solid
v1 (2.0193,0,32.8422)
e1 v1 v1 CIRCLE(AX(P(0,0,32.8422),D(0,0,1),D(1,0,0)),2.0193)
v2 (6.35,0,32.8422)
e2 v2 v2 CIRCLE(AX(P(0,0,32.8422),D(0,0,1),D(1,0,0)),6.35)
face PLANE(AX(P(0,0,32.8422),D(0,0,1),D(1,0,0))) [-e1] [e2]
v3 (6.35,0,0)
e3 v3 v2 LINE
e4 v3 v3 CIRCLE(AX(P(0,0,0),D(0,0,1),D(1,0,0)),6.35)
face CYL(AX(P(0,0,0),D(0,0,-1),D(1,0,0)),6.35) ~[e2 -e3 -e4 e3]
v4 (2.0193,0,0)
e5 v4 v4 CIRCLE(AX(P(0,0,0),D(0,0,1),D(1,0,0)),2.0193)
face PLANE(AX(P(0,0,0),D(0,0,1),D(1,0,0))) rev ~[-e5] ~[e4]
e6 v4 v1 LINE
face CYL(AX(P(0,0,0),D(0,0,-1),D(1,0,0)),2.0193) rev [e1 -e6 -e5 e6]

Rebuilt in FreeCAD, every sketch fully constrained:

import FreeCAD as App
import Part
import Sketcher

V = App.Vector
Q = App.Units.Quantity

doc = App.newDocument("Part")
body = doc.addObject("PartDesign::Body", "Body")

# Sketch on XY plane
sketch1 = body.newObject("Sketcher::SketchObject", "Sketch")
sketch1.AttachmentSupport = (doc.getObject("XY_Plane"), [""])
sketch1.MapMode = "FlatFace"
sketch1.addGeometry(Part.Circle(V(0, 0, 0), V(0, 0, 1), 6.3), False)
sketch1.addGeometry(Part.Circle(V(0, 0, 0), V(0, 0, 1), 2), False)
sketch1.addConstraint(Sketcher.Constraint("Coincident", 0, 3, -1, 1))
sketch1.addConstraint(Sketcher.Constraint("Coincident", 1, 3, -1, 1))
sketch1.addConstraint(Sketcher.Constraint("Diameter", 0, Q("0.5 in")))
sketch1.addConstraint(Sketcher.Constraint("Diameter", 1, Q("0.159 in")))
pad1 = body.newObject("PartDesign::Pad", "Pad")
pad1.Profile = sketch1
pad1.Length = Q("1.293 in")

doc.recompute()
